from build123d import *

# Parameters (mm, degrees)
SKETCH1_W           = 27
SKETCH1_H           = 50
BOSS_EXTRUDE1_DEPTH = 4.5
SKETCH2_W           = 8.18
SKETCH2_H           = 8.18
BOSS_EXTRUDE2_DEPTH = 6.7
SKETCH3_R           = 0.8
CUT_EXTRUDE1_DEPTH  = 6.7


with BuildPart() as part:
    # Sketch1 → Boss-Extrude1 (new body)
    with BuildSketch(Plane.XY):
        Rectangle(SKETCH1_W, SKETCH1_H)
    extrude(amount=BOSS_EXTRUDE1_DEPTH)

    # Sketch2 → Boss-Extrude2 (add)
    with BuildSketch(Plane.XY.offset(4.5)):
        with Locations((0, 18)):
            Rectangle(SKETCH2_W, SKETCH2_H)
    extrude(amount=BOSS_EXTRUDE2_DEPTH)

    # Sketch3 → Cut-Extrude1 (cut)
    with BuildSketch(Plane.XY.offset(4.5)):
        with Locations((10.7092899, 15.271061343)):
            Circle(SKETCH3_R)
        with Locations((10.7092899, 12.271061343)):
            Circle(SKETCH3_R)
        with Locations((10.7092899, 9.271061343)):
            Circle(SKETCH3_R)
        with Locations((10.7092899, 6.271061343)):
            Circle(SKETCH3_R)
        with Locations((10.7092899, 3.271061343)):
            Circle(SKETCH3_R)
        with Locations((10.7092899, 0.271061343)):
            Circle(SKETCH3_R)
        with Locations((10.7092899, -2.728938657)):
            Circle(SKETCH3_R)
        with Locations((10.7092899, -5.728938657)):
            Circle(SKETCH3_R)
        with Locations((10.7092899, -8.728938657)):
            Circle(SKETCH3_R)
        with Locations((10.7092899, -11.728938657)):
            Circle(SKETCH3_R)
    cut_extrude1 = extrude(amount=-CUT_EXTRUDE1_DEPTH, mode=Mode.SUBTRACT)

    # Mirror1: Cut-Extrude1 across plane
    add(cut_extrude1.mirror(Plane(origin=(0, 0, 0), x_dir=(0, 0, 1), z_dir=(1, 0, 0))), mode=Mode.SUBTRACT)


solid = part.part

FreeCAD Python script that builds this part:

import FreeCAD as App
import Part
import Sketcher
Q = App.Units.Quantity


def add_polygon(sketch, points):
    """Adds a closed chain of lines whose ends are joined by coincident constraints."""
    first, n = sketch.GeometryCount, len(points)
    for a, b in zip(points, points[1:] + points[:1]):
        sketch.addGeometry(Part.LineSegment(App.Vector(*a, 0), App.Vector(*b, 0)), False)
    for i in range(n):
        sketch.addConstraint(Sketcher.Constraint("Coincident", first + i, 2, first + (i + 1) % n, 1))

doc = App.newDocument("Part")
body = doc.addObject("PartDesign::Body", "Body")

# Sketch on XY plane
sketch1 = doc.addObject("Sketcher::SketchObject", "Sketch")
body.addObject(sketch1)
sketch1.AttachmentSupport = (doc.XY_Plane, [""])
sketch1.MapMode = "FlatFace"
add_polygon(sketch1, [(-13.5, 25), (-13.5, -25), (13.5, -25), (13.5, 25)])  # lines 0-3
sketch1.addConstraint([
    Sketcher.Constraint("Vertical", 0),
    Sketcher.Constraint("Horizontal", 1),
    Sketcher.Constraint("Vertical", 2),
    Sketcher.Constraint("Horizontal", 3),
    Sketcher.Constraint("Symmetric", 0, 2, 2, 2, -1, 1),
    Sketcher.Constraint("DistanceX", 1, 1, 1, 2, Q("27 mm")),
    Sketcher.Constraint("DistanceY", 0, 2, 0, 1, Q("50 mm")),
])
pad1 = doc.addObject("PartDesign::Pad", "Pad")
body.addObject(pad1)
pad1.Profile = sketch1
pad1.Length = 4.5

# Sketch on XY plane
sketch2 = doc.addObject("Sketcher::SketchObject", "Sketch001")
body.addObject(sketch2)
sketch2.AttachmentSupport = (doc.XY_Plane, [""])
sketch2.MapMode = "FlatFace"
sketch2.AttachmentOffset = App.Placement(App.Vector(0, 0, 4.5), App.Rotation())
add_polygon(sketch2, [(-4.09, 22.09), (-4.09, 13.91), (4.09, 13.91), (4.09, 22.09)])  # lines 0-3
sketch2.addConstraint([
    Sketcher.Constraint("Vertical", 0),
    Sketcher.Constraint("Horizontal", 1),
    Sketcher.Constraint("Vertical", 2),
    Sketcher.Constraint("Horizontal", 3),
    Sketcher.Constraint("Equal", 3, 0),
    Sketcher.Constraint("DistanceX", 1, 1, 1, 2, Q("8.18 mm")),
    Sketcher.Constraint("DistanceX", 0, 2, -1, 1, Q("4.09 mm")),
    Sketcher.Constraint("DistanceY", -1, 1, 0, 2, Q("13.91 mm")),
])
pad2 = doc.addObject("PartDesign::Pad", "Pad001")
body.addObject(pad2)
pad2.Profile = sketch2
pad2.Length = 6.7

# Sketch on XY plane
sketch3 = doc.addObject("Sketcher::SketchObject", "Sketch002")
body.addObject(sketch3)
sketch3.AttachmentSupport = (doc.XY_Plane, [""])
sketch3.MapMode = "FlatFace"
sketch3.AttachmentOffset = App.Placement(App.Vector(0, 0, 4.5), App.Rotation())
sketch3.addGeometry([
    Part.Circle(App.Vector(10.70929, 15.271061, 0), App.Vector(0, 0, 1), 0.8),  # 0
    Part.Circle(App.Vector(10.70929, 12.271061, 0), App.Vector(0, 0, 1), 0.8),  # 1
    Part.Circle(App.Vector(10.70929, 9.271061, 0), App.Vector(0, 0, 1), 0.8),  # 2
    Part.Circle(App.Vector(10.70929, 6.271061, 0), App.Vector(0, 0, 1), 0.8),  # 3
    Part.Circle(App.Vector(10.70929, 3.271061, 0), App.Vector(0, 0, 1), 0.8),  # 4
    Part.Circle(App.Vector(10.70929, 0.271061, 0), App.Vector(0, 0, 1), 0.8),  # 5
    Part.Circle(App.Vector(10.70929, -2.728939, 0), App.Vector(0, 0, 1), 0.8),  # 6
    Part.Circle(App.Vector(10.70929, -5.728939, 0), App.Vector(0, 0, 1), 0.8),  # 7
    Part.Circle(App.Vector(10.70929, -8.728939, 0), App.Vector(0, 0, 1), 0.8),  # 8
    Part.Circle(App.Vector(10.70929, -11.728939, 0), App.Vector(0, 0, 1), 0.8),  # 9
], False)
sketch3.addConstraint([
    Sketcher.Constraint("Equal", 0, 1),
    Sketcher.Constraint("Equal", 1, 2),
    Sketcher.Constraint("Equal", 2, 3),
    Sketcher.Constraint("Equal", 3, 4),
    Sketcher.Constraint("Equal", 4, 5),
    Sketcher.Constraint("Equal", 5, 6),
    Sketcher.Constraint("Equal", 6, 7),
    Sketcher.Constraint("Equal", 7, 8),
    Sketcher.Constraint("Equal", 8, 9),
    Sketcher.Constraint("Vertical", 0, 3, 1, 3),
    Sketcher.Constraint("Vertical", 1, 3, 2, 3),
    Sketcher.Constraint("Vertical", 2, 3, 3, 3),
    Sketcher.Constraint("Vertical", 3, 3, 4, 3),
    Sketcher.Constraint("Vertical", 4, 3, 5, 3),
    Sketcher.Constraint("Vertical", 5, 3, 6, 3),
    Sketcher.Constraint("Vertical", 6, 3, 7, 3),
    Sketcher.Constraint("Vertical", 7, 3, 8, 3),
    Sketcher.Constraint("Vertical", 8, 3, 9, 3),
    Sketcher.Constraint("Diameter", 0, Q("1.6 mm")),
    Sketcher.Constraint("DistanceY", 1, 3, 0, 3, Q("3 mm")),
    Sketcher.Constraint("DistanceY", 2, 3, 1, 3, Q("3 mm")),
    Sketcher.Constraint("DistanceY", 3, 3, 2, 3, Q("3 mm")),
    Sketcher.Constraint("DistanceY", 4, 3, 3, 3, Q("3 mm")),
    Sketcher.Constraint("DistanceY", 5, 3, 4, 3, Q("3 mm")),
    Sketcher.Constraint("DistanceY", 6, 3, 5, 3, Q("3 mm")),
    Sketcher.Constraint("DistanceY", 7, 3, 6, 3, Q("3 mm")),
    Sketcher.Constraint("DistanceY", 8, 3, 7, 3, Q("3 mm")),
    Sketcher.Constraint("DistanceY", 9, 3, 8, 3, Q("3 mm")),
    Sketcher.Constraint("DistanceX", -1, 1, 0, 3, Q("10.70929 mm")),
    Sketcher.Constraint("DistanceY", -1, 1, 0, 3, Q("15.271061 mm")),
])
pocket1 = doc.addObject("PartDesign::Pocket", "Pocket")
body.addObject(pocket1)
pocket1.Profile = sketch3
pocket1.Length = 6.7
doc.recompute()

mirrored = doc.addObject("PartDesign::Mirrored", "Mirrored")
body.addObject(mirrored)
mirrored.Originals = [pocket1]
mirrored.MirrorPlane = (doc.YZ_Plane, [""])
body.Tip = mirrored

doc.recompute()
